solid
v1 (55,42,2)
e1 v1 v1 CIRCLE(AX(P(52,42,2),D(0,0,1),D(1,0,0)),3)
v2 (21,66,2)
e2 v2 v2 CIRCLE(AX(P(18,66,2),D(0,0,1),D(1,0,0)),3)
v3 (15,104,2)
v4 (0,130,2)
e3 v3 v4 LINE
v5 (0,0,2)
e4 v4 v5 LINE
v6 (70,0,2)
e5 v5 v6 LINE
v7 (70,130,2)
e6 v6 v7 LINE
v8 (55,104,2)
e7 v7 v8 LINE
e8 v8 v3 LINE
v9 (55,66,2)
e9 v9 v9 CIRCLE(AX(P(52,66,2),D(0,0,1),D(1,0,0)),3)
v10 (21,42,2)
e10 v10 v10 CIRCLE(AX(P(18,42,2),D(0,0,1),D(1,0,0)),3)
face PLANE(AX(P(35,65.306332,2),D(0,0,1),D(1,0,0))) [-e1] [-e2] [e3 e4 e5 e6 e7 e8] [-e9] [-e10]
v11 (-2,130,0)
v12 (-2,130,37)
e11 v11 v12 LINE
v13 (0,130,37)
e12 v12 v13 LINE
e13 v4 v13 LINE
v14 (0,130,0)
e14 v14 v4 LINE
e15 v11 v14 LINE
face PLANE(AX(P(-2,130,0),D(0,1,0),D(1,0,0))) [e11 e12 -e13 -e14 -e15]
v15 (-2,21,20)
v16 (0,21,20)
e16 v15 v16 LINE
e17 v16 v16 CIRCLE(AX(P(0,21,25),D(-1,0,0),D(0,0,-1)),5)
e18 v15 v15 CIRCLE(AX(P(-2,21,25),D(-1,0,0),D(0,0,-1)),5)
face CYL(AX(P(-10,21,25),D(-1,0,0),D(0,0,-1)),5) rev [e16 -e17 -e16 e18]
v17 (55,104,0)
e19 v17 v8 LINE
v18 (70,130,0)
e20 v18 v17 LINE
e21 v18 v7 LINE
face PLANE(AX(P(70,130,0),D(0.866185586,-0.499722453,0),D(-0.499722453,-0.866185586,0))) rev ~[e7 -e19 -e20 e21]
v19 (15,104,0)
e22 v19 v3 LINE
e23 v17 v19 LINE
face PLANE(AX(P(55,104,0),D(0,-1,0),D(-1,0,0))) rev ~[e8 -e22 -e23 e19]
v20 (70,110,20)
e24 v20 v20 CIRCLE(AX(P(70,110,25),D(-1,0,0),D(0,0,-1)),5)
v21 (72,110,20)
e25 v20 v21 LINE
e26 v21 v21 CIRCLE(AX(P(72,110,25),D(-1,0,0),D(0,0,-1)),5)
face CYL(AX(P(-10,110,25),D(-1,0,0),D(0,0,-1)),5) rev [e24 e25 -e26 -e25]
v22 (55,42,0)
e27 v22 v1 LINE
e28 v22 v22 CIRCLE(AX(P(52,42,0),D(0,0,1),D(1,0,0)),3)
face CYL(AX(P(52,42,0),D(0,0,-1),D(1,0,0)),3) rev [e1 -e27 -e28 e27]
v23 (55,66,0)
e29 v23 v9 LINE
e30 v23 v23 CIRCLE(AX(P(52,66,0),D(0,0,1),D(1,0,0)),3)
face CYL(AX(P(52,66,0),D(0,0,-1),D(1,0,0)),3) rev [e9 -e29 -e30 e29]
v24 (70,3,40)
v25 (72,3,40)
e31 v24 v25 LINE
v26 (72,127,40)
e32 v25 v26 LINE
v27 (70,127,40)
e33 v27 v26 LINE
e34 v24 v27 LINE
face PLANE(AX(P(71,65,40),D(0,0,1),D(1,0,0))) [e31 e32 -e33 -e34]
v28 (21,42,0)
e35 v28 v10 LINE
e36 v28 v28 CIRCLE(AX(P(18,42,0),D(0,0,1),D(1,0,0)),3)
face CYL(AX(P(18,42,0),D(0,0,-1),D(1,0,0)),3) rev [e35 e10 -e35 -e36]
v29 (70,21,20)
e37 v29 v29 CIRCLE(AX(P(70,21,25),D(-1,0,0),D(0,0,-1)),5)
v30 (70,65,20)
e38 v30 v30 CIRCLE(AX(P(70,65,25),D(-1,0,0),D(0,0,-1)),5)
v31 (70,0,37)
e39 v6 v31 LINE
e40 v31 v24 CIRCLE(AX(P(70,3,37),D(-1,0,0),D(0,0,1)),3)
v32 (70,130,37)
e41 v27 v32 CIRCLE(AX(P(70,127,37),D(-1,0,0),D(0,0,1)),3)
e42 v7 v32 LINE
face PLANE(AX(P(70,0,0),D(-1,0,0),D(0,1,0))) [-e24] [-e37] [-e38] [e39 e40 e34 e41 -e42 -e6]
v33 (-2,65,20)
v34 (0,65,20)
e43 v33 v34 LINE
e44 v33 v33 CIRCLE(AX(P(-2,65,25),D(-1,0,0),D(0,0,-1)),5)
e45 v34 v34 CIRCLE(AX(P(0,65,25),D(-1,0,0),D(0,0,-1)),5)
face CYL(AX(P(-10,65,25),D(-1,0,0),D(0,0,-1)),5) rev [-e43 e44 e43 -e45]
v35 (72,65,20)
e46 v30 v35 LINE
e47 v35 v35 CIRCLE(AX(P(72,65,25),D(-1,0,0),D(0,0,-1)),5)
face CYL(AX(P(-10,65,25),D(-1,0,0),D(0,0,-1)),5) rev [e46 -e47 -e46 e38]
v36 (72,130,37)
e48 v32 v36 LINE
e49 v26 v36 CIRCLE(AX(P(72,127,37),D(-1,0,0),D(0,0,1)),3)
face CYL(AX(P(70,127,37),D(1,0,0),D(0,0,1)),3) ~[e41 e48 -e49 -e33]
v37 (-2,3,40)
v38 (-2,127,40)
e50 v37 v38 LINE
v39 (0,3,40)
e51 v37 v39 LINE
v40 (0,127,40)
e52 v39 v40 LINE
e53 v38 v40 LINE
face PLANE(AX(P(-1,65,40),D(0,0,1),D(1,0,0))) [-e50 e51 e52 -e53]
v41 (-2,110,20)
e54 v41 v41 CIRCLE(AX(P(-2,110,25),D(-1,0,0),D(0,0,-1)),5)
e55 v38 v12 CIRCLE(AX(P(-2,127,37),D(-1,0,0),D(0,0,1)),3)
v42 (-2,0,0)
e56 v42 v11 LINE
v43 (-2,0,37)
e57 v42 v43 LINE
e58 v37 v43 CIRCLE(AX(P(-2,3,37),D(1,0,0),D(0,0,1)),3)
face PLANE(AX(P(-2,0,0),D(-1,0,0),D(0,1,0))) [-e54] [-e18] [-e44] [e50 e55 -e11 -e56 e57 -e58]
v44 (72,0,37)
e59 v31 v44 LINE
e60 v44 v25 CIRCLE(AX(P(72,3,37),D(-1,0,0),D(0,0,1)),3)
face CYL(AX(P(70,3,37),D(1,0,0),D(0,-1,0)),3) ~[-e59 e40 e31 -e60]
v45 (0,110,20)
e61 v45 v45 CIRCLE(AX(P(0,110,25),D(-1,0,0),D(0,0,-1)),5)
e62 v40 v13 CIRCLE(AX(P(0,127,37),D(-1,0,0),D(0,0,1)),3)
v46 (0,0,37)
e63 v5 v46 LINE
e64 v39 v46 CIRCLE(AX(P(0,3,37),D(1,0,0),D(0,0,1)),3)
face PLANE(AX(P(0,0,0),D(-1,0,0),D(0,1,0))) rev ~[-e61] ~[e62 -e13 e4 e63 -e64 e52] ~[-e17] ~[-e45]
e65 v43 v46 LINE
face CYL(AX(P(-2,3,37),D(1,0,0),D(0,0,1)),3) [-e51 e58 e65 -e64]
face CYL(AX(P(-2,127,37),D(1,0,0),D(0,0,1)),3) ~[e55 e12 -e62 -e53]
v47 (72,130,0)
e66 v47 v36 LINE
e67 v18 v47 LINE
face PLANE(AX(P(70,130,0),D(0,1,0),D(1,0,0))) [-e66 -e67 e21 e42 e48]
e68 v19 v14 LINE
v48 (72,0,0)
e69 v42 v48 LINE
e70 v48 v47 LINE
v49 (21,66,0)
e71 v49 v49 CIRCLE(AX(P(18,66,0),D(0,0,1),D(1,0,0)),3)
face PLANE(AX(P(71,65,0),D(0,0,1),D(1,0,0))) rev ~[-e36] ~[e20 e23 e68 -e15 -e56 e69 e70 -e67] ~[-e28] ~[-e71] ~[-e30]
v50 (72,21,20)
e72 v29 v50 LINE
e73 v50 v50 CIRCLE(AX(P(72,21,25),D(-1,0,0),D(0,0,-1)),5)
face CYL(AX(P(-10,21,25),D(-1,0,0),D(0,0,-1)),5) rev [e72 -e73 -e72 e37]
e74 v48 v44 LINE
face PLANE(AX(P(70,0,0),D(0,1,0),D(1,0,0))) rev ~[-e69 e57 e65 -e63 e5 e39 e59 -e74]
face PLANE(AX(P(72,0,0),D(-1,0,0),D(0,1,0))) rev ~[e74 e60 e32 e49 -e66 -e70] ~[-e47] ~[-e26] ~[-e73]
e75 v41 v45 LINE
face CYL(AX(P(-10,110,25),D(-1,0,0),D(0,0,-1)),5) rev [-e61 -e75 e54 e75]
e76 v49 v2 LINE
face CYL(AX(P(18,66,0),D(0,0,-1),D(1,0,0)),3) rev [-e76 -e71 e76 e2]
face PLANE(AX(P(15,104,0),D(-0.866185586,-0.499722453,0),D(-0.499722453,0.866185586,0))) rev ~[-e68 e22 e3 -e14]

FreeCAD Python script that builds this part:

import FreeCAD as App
import Part
import Sketcher


def edges_at(feature, points):
    """Names of the edges that pass closest to the given points."""
    edges = feature.Shape.Edges
    near = lambda p: min(range(len(edges)), key=lambda i: edges[i].distToShape(Part.Vertex(*p))[0])
    return sorted({f"Edge{near(p) + 1}" for p in points})

doc = App.newDocument("Part")
params = doc.addObject("Spreadsheet::Sheet", "Params")
for row, (alias, value) in enumerate([
    ("sketch1_diameter", "10 mm"),
    ("pad1_length", "100 mm"),
    ("sketch2_diameter", "10 mm"),
    ("pad2_length", "100 mm"),
    ("sketch3_diameter", "10 mm"),
    ("pad3_length", "100 mm"),
    ("sketch4_width", "2 mm"),
    ("sketch4_height", "130 mm"),
    ("pad4_length", "40 mm"),
    ("sketch5_width", "2 mm"),
    ("sketch5_height", "130 mm"),
    ("pad5_length", "40 mm"),
    ("sketch6_diameter", "6 mm"),
    ("sketch6_width", "70 mm"),
    ("sketch6_width2", "40 mm"),
    ("sketch6_height", "130 mm"),
    ("pad6_length", "2 mm"),
    ("fillet_radius", "3 mm"),
], start=1):
    params.set(f"A{row}", alias)
    params.set(f"B{row}", "=" + value)
    params.setAlias(f"B{row}", alias)

body = doc.addObject("PartDesign::Body", "Body")

sketch1 = body.newObject("Sketcher::SketchObject", "Sketch")
sketch1.AttachmentSupport = (doc.getObject("YZ_Plane"), [""])
sketch1.MapMode = "FlatFace"
sketch1.AttachmentOffset = App.Placement(App.Vector(0, 0, -10), App.Rotation())
sketch1.addGeometry(Part.Circle(App.Vector(65, 25, 0), App.Vector(0, 0, 1), 5), False)
sketch1.addConstraint(Sketcher.Constraint("Diameter", 0, 10.0))
sketch1.addConstraint(Sketcher.Constraint("DistanceX", -1, 1, 0, 3, 65.0))
sketch1.addConstraint(Sketcher.Constraint("DistanceY", -1, 1, 0, 3, 25.0))
sketch1.setExpression("Constraints[0]", "Params.sketch1_diameter")
pad1 = body.newObject("PartDesign::Pad", "Pad")
pad1.Profile = sketch1
pad1.setExpression("Length", "Params.pad1_length")
body2 = doc.addObject("PartDesign::Body", "Body001")

sketch2 = body2.newObject("Sketcher::SketchObject", "Sketch001")
sketch2.AttachmentSupport = (doc.getObject("YZ_Plane001"), [""])
sketch2.MapMode = "FlatFace"
sketch2.AttachmentOffset = App.Placement(App.Vector(0, 0, -10), App.Rotation())
sketch2.addGeometry(Part.Circle(App.Vector(21, 25, 0), App.Vector(0, 0, 1), 5), False)
sketch2.addConstraint(Sketcher.Constraint("Diameter", 0, 10.0))
sketch2.addConstraint(Sketcher.Constraint("DistanceX", -1, 1, 0, 3, 21.0))
sketch2.addConstraint(Sketcher.Constraint("DistanceY", -1, 1, 0, 3, 25.0))
sketch2.setExpression("Constraints[0]", "Params.sketch2_diameter")
pad2 = body2.newObject("PartDesign::Pad", "Pad001")
pad2.Profile = sketch2
pad2.setExpression("Length", "Params.pad2_length")
body3 = doc.addObject("PartDesign::Body", "Body002")
body3.AllowCompound = True

sketch3 = body3.newObject("Sketcher::SketchObject", "Sketch002")
sketch3.AttachmentSupport = (doc.getObject("YZ_Plane002"), [""])
sketch3.MapMode = "FlatFace"
sketch3.AttachmentOffset = App.Placement(App.Vector(0, 0, -10), App.Rotation())
sketch3.addGeometry(Part.Circle(App.Vector(110, 25, 0), App.Vector(0, 0, 1), 5), False)
sketch3.addConstraint(Sketcher.Constraint("Diameter", 0, 10.0))
sketch3.addConstraint(Sketcher.Constraint("DistanceX", -1, 1, 0, 3, 110.0))
sketch3.addConstraint(Sketcher.Constraint("DistanceY", -1, 1, 0, 3, 25.0))
sketch3.setExpression("Constraints[0]", "Params.sketch3_diameter")
pad3 = body3.newObject("PartDesign::Pad", "Pad002")
pad3.Profile = sketch3
pad3.setExpression("Length", "Params.pad3_length")
doc.recompute()

boolean = body3.newObject("PartDesign::Boolean", "Boolean")
boolean.Type = "Fuse"
boolean.addObjects([body])
doc.recompute()

boolean2 = body3.newObject("PartDesign::Boolean", "Boolean001")
boolean2.Type = "Fuse"
boolean2.addObjects([body2])
body4 = doc.addObject("PartDesign::Body", "Body003")

sketch4 = body4.newObject("Sketcher::SketchObject", "Sketch003")
sketch4.AttachmentSupport = (doc.getObject("XY_Plane003"), [""])
sketch4.MapMode = "FlatFace"
sketch4.addGeometry(Part.LineSegment(App.Vector(70, 130, 0), App.Vector(70, 0, 0)), False)
sketch4.addGeometry(Part.LineSegment(App.Vector(70, 0, 0), App.Vector(72, 0, 0)), False)
sketch4.addGeometry(Part.LineSegment(App.Vector(72, 0, 0), App.Vector(72, 130, 0)), False)
sketch4.addGeometry(Part.LineSegment(App.Vector(72, 130, 0), App.Vector(70, 130, 0)), False)
sketch4.addConstraint(Sketcher.Constraint("Coincident", 0, 2, 1, 1))
sketch4.addConstraint(Sketcher.Constraint("Coincident", 1, 2, 2, 1))
sketch4.addConstraint(Sketcher.Constraint("Coincident", 2, 2, 3, 1))
sketch4.addConstraint(Sketcher.Constraint("Coincident", 3, 2, 0, 1))
sketch4.addConstraint(Sketcher.Constraint("Vertical", 0))
sketch4.addConstraint(Sketcher.Constraint("Horizontal", 1))
sketch4.addConstraint(Sketcher.Constraint("Vertical", 2))
sketch4.addConstraint(Sketcher.Constraint("Horizontal", 3))
sketch4.addConstraint(Sketcher.Constraint("PointOnObject", 0, 2, -1))
sketch4.addConstraint(Sketcher.Constraint("DistanceX", 1, 1, 1, 2, 2.0))
sketch4.addConstraint(Sketcher.Constraint("DistanceY", 0, 2, 0, 1, 130.0))
sketch4.addConstraint(Sketcher.Constraint("DistanceX", -1, 1, 0, 2, 70.0))
sketch4.setExpression("Constraints[9]", "Params.sketch4_width")
sketch4.setExpression("Constraints[10]", "Params.sketch4_height")
pad4 = body4.newObject("PartDesign::Pad", "Pad003")
pad4.Profile = sketch4
pad4.setExpression("Length", "Params.pad4_length")
body5 = doc.addObject("PartDesign::Body", "Body004")
body5.AllowCompound = True

sketch5 = body5.newObject("Sketcher::SketchObject", "Sketch004")
sketch5.AttachmentSupport = (doc.getObject("XY_Plane004"), [""])
sketch5.MapMode = "FlatFace"
sketch5.addGeometry(Part.LineSegment(App.Vector(-2, 130, 0), App.Vector(-2, 0, 0)), False)
sketch5.addGeometry(Part.LineSegment(App.Vector(-2, 0, 0), App.Vector(0, 0, 0)), False)
sketch5.addGeometry(Part.LineSegment(App.Vector(0, 0, 0), App.Vector(0, 130, 0)), False)
sketch5.addGeometry(Part.LineSegment(App.Vector(0, 130, 0), App.Vector(-2, 130, 0)), False)
sketch5.addConstraint(Sketcher.Constraint("Coincident", 0, 2, 1, 1))
sketch5.addConstraint(Sketcher.Constraint("Coincident", 1, 2, 2, 1))
sketch5.addConstraint(Sketcher.Constraint("Coincident", 2, 2, 3, 1))
sketch5.addConstraint(Sketcher.Constraint("Coincident", 3, 2, 0, 1))
sketch5.addConstraint(Sketcher.Constraint("Vertical", 0))
sketch5.addConstraint(Sketcher.Constraint("Horizontal", 1))
sketch5.addConstraint(Sketcher.Constraint("Vertical", 2))
sketch5.addConstraint(Sketcher.Constraint("Horizontal", 3))
sketch5.addConstraint(Sketcher.Constraint("Coincident", 1, 2, -1, 1))
sketch5.addConstraint(Sketcher.Constraint("DistanceX", 1, 1, 1, 2, 2.0))
sketch5.addConstraint(Sketcher.Constraint("DistanceY", 0, 2, 0, 1, 130.0))
sketch5.setExpression("Constraints[9]", "Params.sketch5_width")
sketch5.setExpression("Constraints[10]", "Params.sketch5_height")
pad5 = body5.newObject("PartDesign::Pad", "Pad004")
pad5.Profile = sketch5
pad5.setExpression("Length", "Params.pad5_length")
doc.recompute()

boolean3 = body5.newObject("PartDesign::Boolean", "Boolean002")
boolean3.Type = "Fuse"
boolean3.addObjects([body4])
doc.recompute()

boolean4 = body5.newObject("PartDesign::Boolean", "Boolean003")
boolean4.Type = "Cut"
boolean4.addObjects([body3])
body6 = doc.addObject("PartDesign::Body", "Body005")

sketch6 = body6.newObject("Sketcher::SketchObject", "Sketch005")
sketch6.AttachmentSupport = (doc.getObject("XY_Plane005"), [""])
sketch6.MapMode = "FlatFace"
sketch6.addGeometry(Part.LineSegment(App.Vector(0, 130, 0), App.Vector(0, 0, 0)), False)
sketch6.addGeometry(Part.LineSegment(App.Vector(0, 0, 0), App.Vector(70, 0, 0)), False)
sketch6.addGeometry(Part.LineSegment(App.Vector(70, 0, 0), App.Vector(70, 130, 0)), False)
sketch6.addGeometry(Part.LineSegment(App.Vector(70, 130, 0), App.Vector(55, 104, 0)), False)
sketch6.addGeometry(Part.LineSegment(App.Vector(55, 104, 0), App.Vector(15, 104, 0)), False)
sketch6.addGeometry(Part.LineSegment(App.Vector(15, 104, 0), App.Vector(0, 130, 0)), False)
sketch6.addGeometry(Part.Circle(App.Vector(18, 42, 0), App.Vector(0, 0, 1), 3), False)
sketch6.addGeometry(Part.Circle(App.Vector(52, 42, 0), App.Vector(0, 0, 1), 3), False)
sketch6.addGeometry(Part.Circle(App.Vector(18, 66, 0), App.Vector(0, 0, 1), 3), False)
sketch6.addGeometry(Part.Circle(App.Vector(52, 66, 0), App.Vector(0, 0, 1), 3), False)
sketch6.addConstraint(Sketcher.Constraint("Coincident", 0, 2, 1, 1))
sketch6.addConstraint(Sketcher.Constraint("Coincident", 1, 2, 2, 1))
sketch6.addConstraint(Sketcher.Constraint("Coincident", 2, 2, 3, 1))
sketch6.addConstraint(Sketcher.Constraint("Coincident", 3, 2, 4, 1))
sketch6.addConstraint(Sketcher.Constraint("Coincident", 4, 2, 5, 1))
sketch6.addConstraint(Sketcher.Constraint("Coincident", 5, 2, 0, 1))
sketch6.addConstraint(Sketcher.Constraint("Vertical", 0))
sketch6.addConstraint(Sketcher.Constraint("Horizontal", 1))
sketch6.addConstraint(Sketcher.Constraint("Vertical", 2))
sketch6.addConstraint(Sketcher.Constraint("Horizontal", 4))
sketch6.addConstraint(Sketcher.Constraint("Coincident", 0, 2, -1, 1))
sketch6.addConstraint(Sketcher.Constraint("Equal", 6, 7))
sketch6.addConstraint(Sketcher.Constraint("Equal", 7, 8))
sketch6.addConstraint(Sketcher.Constraint("Equal", 8, 9))
sketch6.addConstraint(Sketcher.Constraint("Horizontal", 6, 3, 7, 3))
sketch6.addConstraint(Sketcher.Constraint("Horizontal", 8, 3, 9, 3))
sketch6.addConstraint(Sketcher.Constraint("Horizontal", 2, 2, 5, 2))
sketch6.addConstraint(Sketcher.Constraint("Vertical", 6, 3, 8, 3))
sketch6.addConstraint(Sketcher.Constraint("Vertical", 7, 3, 9, 3))
sketch6.addConstraint(Sketcher.Constraint("Equal", 3, 5))
sketch6.addConstraint(Sketcher.Constraint("Diameter", 6, 6.0))
sketch6.addConstraint(Sketcher.Constraint("DistanceX", 1, 1, 1, 2, 70.0))
sketch6.addConstraint(Sketcher.Constraint("DistanceX", 4, 2, 4, 1, 40.0))
sketch6.addConstraint(Sketcher.Constraint("DistanceY", 0, 2, 0, 1, 130.0))
sketch6.addConstraint(Sketcher.Constraint("DistanceX", -1, 1, 6, 3, 18.0))
sketch6.addConstraint(Sketcher.Constraint("DistanceY", -1, 1, 6, 3, 42.0))
sketch6.addConstraint(Sketcher.Constraint("DistanceX", -1, 1, 7, 3, 52.0))
sketch6.addConstraint(Sketcher.Constraint("DistanceY", -1, 1, 8, 3, 66.0))
sketch6.addConstraint(Sketcher.Constraint("DistanceY", -1, 1, 3, 2, 104.0))
sketch6.setExpression("Constraints[20]", "Params.sketch6_diameter")
sketch6.setExpression("Constraints[21]", "Params.sketch6_width")
sketch6.setExpression("Constraints[22]", "Params.sketch6_width2")
sketch6.setExpression("Constraints[23]", "Params.sketch6_height")
pad6 = body6.newObject("PartDesign::Pad", "Pad005")
pad6.Profile = sketch6
pad6.setExpression("Length", "Params.pad6_length")
doc.recompute()

boolean5 = body6.newObject("PartDesign::Boolean", "Boolean004")
boolean5.Type = "Fuse"
boolean5.addObjects([body5])
doc.recompute()

fillet = body6.newObject("PartDesign::Fillet", "Fillet")
fillet.Base = (boolean5, edges_at(boolean5, [
    (71, 130, 40),
    (71, 0, 40),
    (-1, 130, 40),
    (-1, 0, 40),
]))
fillet.setExpression("Radius", "Params.fillet_radius")

doc.recompute()
